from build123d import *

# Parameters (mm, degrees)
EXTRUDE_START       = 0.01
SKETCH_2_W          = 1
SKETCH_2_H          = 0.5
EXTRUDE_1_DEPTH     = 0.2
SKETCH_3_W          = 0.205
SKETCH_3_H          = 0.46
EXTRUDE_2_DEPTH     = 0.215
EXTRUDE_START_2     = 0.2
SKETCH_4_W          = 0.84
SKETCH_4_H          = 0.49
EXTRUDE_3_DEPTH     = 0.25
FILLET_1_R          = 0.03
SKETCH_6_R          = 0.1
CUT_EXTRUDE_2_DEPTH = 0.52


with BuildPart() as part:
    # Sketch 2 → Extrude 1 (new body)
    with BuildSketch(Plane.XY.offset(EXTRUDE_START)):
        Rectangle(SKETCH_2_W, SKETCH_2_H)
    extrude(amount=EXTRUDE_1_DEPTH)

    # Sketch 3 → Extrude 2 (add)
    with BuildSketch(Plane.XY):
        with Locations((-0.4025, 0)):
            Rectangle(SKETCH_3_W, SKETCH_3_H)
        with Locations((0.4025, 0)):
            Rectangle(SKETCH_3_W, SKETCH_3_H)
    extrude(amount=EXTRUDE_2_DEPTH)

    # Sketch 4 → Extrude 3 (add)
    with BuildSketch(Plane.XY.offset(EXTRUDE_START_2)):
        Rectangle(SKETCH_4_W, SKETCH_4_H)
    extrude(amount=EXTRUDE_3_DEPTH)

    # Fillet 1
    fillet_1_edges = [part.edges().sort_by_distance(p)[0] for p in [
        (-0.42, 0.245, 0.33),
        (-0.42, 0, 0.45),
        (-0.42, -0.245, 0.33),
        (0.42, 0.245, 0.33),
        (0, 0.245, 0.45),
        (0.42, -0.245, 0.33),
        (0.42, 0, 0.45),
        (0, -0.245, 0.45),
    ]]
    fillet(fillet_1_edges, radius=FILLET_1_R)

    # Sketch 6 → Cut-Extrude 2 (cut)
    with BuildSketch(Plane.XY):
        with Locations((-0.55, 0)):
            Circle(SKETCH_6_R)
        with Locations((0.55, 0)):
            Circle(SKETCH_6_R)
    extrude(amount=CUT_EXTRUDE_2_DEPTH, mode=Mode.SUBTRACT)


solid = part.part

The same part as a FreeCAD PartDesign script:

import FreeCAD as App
import Part
import Sketcher
from FreeCAD import Vector


def edges_at(feature, points):
    """Names of the edges that pass closest to the given points."""
    edges = feature.Shape.Edges
    near = lambda p: min(range(len(edges)), key=lambda i: edges[i].distToShape(Part.Vertex(*p))[0])
    return sorted({f"Edge{near(p) + 1}" for p in points})

doc = App.newDocument("Part")
params = doc.addObject("Spreadsheet::Sheet", "Params")
for row, (alias, value) in enumerate([
    ("sketch1_width", "1 mm"),
    ("sketch1_height", "0.5 mm"),
    ("pad1_length", "0.2 mm"),
    ("sketch2_height", "0.46 mm"),
    ("pad2_length", "0.215 mm"),
    ("sketch3_width", "0.84 mm"),
    ("sketch3_height", "0.49 mm"),
    ("pad3_length", "0.25 mm"),
    ("fillet_radius", "0.03 mm"),
    ("sketch4_diameter", "0.2 mm"),
    ("pocket1_length", "0.52 mm"),
], start=1):
    params.set(f"A{row}", alias)
    params.set(f"B{row}", "=" + value)
    params.setAlias(f"B{row}", alias)

body = doc.addObject("PartDesign::Body", "Body")

# Sketch on XY plane
sketch1 = doc.addObject("Sketcher::SketchObject", "Sketch")
body.addObject(sketch1)
sketch1.AttachmentSupport = (doc.XY_Plane, [""])
sketch1.MapMode = "FlatFace"
sketch1.AttachmentOffset = App.Placement(Vector(0, 0, 0.01), App.Rotation())
sketch1.addGeometry(Part.LineSegment(Vector(-0.5, 0.2, 0), Vector(-0.5, -0.2, 0)), False)
sketch1.addGeometry(Part.LineSegment(Vector(-0.5, -0.2, 0), Vector(0.5, -0.2, 0)), False)
sketch1.addGeometry(Part.LineSegment(Vector(0.5, -0.2, 0), Vector(0.5, 0.2, 0)), False)
sketch1.addGeometry(Part.LineSegment(Vector(0.5, 0.2, 0), Vector(-0.5, 0.2, 0)), False)
sketch1.addConstraint(Sketcher.Constraint("Coincident", 0, 2, 1, 1))
sketch1.addConstraint(Sketcher.Constraint("Coincident", 1, 2, 2, 1))
sketch1.addConstraint(Sketcher.Constraint("Coincident", 2, 2, 3, 1))
sketch1.addConstraint(Sketcher.Constraint("Coincident", 3, 2, 0, 1))
sketch1.addConstraint(Sketcher.Constraint("Vertical", 0))
sketch1.addConstraint(Sketcher.Constraint("Horizontal", 1))
sketch1.addConstraint(Sketcher.Constraint("Vertical", 2))
sketch1.addConstraint(Sketcher.Constraint("Horizontal", 3))
sketch1.addConstraint(Sketcher.Constraint("Symmetric", 0, 2, 2, 2, -1, 1))
sketch1.addConstraint(Sketcher.Constraint("DistanceX", 1, 1, 1, 2, 1.0))
sketch1.addConstraint(Sketcher.Constraint("DistanceY", 0, 2, 0, 1, 0.5))
sketch1.setExpression("Constraints[9]", "Params.sketch1_width")
sketch1.setExpression("Constraints[10]", "Params.sketch1_height")
pad1 = doc.addObject("PartDesign::Pad", "Pad")
body.addObject(pad1)
pad1.Profile = sketch1
pad1.setExpression("Length", "Params.pad1_length")

# Sketch on XY plane
sketch2 = doc.addObject("Sketcher::SketchObject", "Sketch001")
body.addObject(sketch2)
sketch2.AttachmentSupport = (doc.XY_Plane, [""])
sketch2.MapMode = "FlatFace"
sketch2.addGeometry(Part.LineSegment(Vector(-0.51, 0.23, 0), Vector(-0.51, -0.23, 0)), False)
sketch2.addGeometry(Part.LineSegment(Vector(-0.51, -0.23, 0), Vector(-0.3, -0.23, 0)), False)
sketch2.addGeometry(Part.LineSegment(Vector(-0.3, -0.23, 0), Vector(-0.3, 0.23, 0)), False)
sketch2.addGeometry(Part.LineSegment(Vector(-0.3, 0.23, 0), Vector(-0.51, 0.23, 0)), False)
sketch2.addGeometry(Part.LineSegment(Vector(0.3, 0.23, 0), Vector(0.3, -0.23, 0)), False)
sketch2.addGeometry(Part.LineSegment(Vector(0.3, -0.23, 0), Vector(0.51, -0.23, 0)), False)
sketch2.addGeometry(Part.LineSegment(Vector(0.51, -0.23, 0), Vector(0.51, 0.23, 0)), False)
sketch2.addGeometry(Part.LineSegment(Vector(0.51, 0.23, 0), Vector(0.3, 0.23, 0)), False)
sketch2.addConstraint(Sketcher.Constraint("Coincident", 0, 2, 1, 1))
sketch2.addConstraint(Sketcher.Constraint("Coincident", 1, 2, 2, 1))
sketch2.addConstraint(Sketcher.Constraint("Coincident", 2, 2, 3, 1))
sketch2.addConstraint(Sketcher.Constraint("Coincident", 3, 2, 0, 1))
sketch2.addConstraint(Sketcher.Constraint("Coincident", 4, 2, 5, 1))
sketch2.addConstraint(Sketcher.Constraint("Coincident", 5, 2, 6, 1))
sketch2.addConstraint(Sketcher.Constraint("Coincident", 6, 2, 7, 1))
sketch2.addConstraint(Sketcher.Constraint("Coincident", 7, 2, 4, 1))
sketch2.addConstraint(Sketcher.Constraint("Vertical", 0))
sketch2.addConstraint(Sketcher.Constraint("Horizontal", 1))
sketch2.addConstraint(Sketcher.Constraint("Vertical", 2))
sketch2.addConstraint(Sketcher.Constraint("Horizontal", 3))
sketch2.addConstraint(Sketcher.Constraint("Vertical", 4))
sketch2.addConstraint(Sketcher.Constraint("Horizontal", 5))
sketch2.addConstraint(Sketcher.Constraint("Vertical", 6))
sketch2.addConstraint(Sketcher.Constraint("Horizontal", 7))
sketch2.addConstraint(Sketcher.Constraint("Symmetric", 2, 2, 4, 2, -1, 1))
sketch2.addConstraint(Sketcher.Constraint("Symmetric", 0, 2, 6, 2, -1, 1))
sketch2.addConstraint(Sketcher.Constraint("Horizontal", 1, 2, 4, 2))
sketch2.addConstraint(Sketcher.Constraint("DistanceY", 0, 2, 0, 1, 0.46))
sketch2.addConstraint(Sketcher.Constraint("DistanceX", 1, 2, -1, 1, 0.3))
sketch2.addConstraint(Sketcher.Constraint("DistanceX", 1, 1, 1, 2, 0.205))
sketch2.setExpression("Constraints[19]", "Params.sketch2_height")
pad2 = doc.addObject("PartDesign::Pad", "Pad001")
body.addObject(pad2)
pad2.Profile = sketch2
pad2.setExpression("Length", "Params.pad2_length")

# Sketch on XY plane
sketch3 = doc.addObject("Sketcher::SketchObject", "Sketch002")
body.addObject(sketch3)
sketch3.AttachmentSupport = (doc.XY_Plane, [""])
sketch3.MapMode = "FlatFace"
sketch3.AttachmentOffset = App.Placement(Vector(0, 0, 0.2), App.Rotation())
sketch3.addGeometry(Part.LineSegment(Vector(-0.42, 0.24, 0), Vector(-0.42, -0.24, 0)), False)
sketch3.addGeometry(Part.LineSegment(Vector(-0.42, -0.24, 0), Vector(0.42, -0.24, 0)), False)
sketch3.addGeometry(Part.LineSegment(Vector(0.42, -0.24, 0), Vector(0.42, 0.24, 0)), False)
sketch3.addGeometry(Part.LineSegment(Vector(0.42, 0.24, 0), Vector(-0.42, 0.24, 0)), False)
sketch3.addConstraint(Sketcher.Constraint("Coincident", 0, 2, 1, 1))
sketch3.addConstraint(Sketcher.Constraint("Coincident", 1, 2, 2, 1))
sketch3.addConstraint(Sketcher.Constraint("Coincident", 2, 2, 3, 1))
sketch3.addConstraint(Sketcher.Constraint("Coincident", 3, 2, 0, 1))
sketch3.addConstraint(Sketcher.Constraint("Vertical", 0))
sketch3.addConstraint(Sketcher.Constraint("Horizontal", 1))
sketch3.addConstraint(Sketcher.Constraint("Vertical", 2))
sketch3.addConstraint(Sketcher.Constraint("Horizontal", 3))
sketch3.addConstraint(Sketcher.Constraint("Symmetric", 0, 2, 2, 2, -1, 1))
sketch3.addConstraint(Sketcher.Constraint("DistanceX", 1, 1, 1, 2, 0.84))
sketch3.addConstraint(Sketcher.Constraint("DistanceY", 0, 2, 0, 1, 0.49))
sketch3.setExpression("Constraints[9]", "Params.sketch3_width")
sketch3.setExpression("Constraints[10]", "Params.sketch3_height")
pad3 = doc.addObject("PartDesign::Pad", "Pad002")
body.addObject(pad3)
pad3.Profile = sketch3
pad3.setExpression("Length", "Params.pad3_length")
doc.recompute()

fillet = doc.addObject("PartDesign::Fillet", "Fillet")
body.addObject(fillet)
fillet.Base = (pad3, edges_at(pad3, [
    (-0.42, 0.245, 0.33),
    (-0.42, 0, 0.45),
    (-0.42, -0.245, 0.33),
    (0.42, 0.245, 0.33),
    (0, 0.245, 0.45),
    (0.42, -0.245, 0.33),
    (0.42, 0, 0.45),
    (0, -0.245, 0.45),
]))
fillet.setExpression("Radius", "Params.fillet_radius")

# Sketch on XY plane
sketch4 = doc.addObject("Sketcher::SketchObject", "Sketch003")
body.addObject(sketch4)
sketch4.AttachmentSupport = (doc.XY_Plane, [""])
sketch4.MapMode = "FlatFace"
sketch4.addGeometry(Part.Circle(Vector(-0.55, 0, 0), Vector(0, 0, 1), 0.1), False)
sketch4.addGeometry(Part.Circle(Vector(0.55, 0, 0), Vector(0, 0, 1), 0.1), False)
sketch4.addConstraint(Sketcher.Constraint("Equal", 0, 1))
sketch4.addConstraint(Sketcher.Constraint("Symmetric", 0, 3, 1, 3, -1, 1))
sketch4.addConstraint(Sketcher.Constraint("PointOnObject", 0, 3, -1))
sketch4.addConstraint(Sketcher.Constraint("Diameter", 0, 0.2))
sketch4.addConstraint(Sketcher.Constraint("DistanceX", 0, 3, 1, 3, 1.1))
sketch4.setExpression("Constraints[3]", "Params.sketch4_diameter")
pocket1 = doc.addObject("PartDesign::Pocket", "Pocket")
body.addObject(pocket1)
pocket1.Profile = sketch4
pocket1.setExpression("Length", "Params.pocket1_length")
pocket1.Reversed = True

doc.recompute()
